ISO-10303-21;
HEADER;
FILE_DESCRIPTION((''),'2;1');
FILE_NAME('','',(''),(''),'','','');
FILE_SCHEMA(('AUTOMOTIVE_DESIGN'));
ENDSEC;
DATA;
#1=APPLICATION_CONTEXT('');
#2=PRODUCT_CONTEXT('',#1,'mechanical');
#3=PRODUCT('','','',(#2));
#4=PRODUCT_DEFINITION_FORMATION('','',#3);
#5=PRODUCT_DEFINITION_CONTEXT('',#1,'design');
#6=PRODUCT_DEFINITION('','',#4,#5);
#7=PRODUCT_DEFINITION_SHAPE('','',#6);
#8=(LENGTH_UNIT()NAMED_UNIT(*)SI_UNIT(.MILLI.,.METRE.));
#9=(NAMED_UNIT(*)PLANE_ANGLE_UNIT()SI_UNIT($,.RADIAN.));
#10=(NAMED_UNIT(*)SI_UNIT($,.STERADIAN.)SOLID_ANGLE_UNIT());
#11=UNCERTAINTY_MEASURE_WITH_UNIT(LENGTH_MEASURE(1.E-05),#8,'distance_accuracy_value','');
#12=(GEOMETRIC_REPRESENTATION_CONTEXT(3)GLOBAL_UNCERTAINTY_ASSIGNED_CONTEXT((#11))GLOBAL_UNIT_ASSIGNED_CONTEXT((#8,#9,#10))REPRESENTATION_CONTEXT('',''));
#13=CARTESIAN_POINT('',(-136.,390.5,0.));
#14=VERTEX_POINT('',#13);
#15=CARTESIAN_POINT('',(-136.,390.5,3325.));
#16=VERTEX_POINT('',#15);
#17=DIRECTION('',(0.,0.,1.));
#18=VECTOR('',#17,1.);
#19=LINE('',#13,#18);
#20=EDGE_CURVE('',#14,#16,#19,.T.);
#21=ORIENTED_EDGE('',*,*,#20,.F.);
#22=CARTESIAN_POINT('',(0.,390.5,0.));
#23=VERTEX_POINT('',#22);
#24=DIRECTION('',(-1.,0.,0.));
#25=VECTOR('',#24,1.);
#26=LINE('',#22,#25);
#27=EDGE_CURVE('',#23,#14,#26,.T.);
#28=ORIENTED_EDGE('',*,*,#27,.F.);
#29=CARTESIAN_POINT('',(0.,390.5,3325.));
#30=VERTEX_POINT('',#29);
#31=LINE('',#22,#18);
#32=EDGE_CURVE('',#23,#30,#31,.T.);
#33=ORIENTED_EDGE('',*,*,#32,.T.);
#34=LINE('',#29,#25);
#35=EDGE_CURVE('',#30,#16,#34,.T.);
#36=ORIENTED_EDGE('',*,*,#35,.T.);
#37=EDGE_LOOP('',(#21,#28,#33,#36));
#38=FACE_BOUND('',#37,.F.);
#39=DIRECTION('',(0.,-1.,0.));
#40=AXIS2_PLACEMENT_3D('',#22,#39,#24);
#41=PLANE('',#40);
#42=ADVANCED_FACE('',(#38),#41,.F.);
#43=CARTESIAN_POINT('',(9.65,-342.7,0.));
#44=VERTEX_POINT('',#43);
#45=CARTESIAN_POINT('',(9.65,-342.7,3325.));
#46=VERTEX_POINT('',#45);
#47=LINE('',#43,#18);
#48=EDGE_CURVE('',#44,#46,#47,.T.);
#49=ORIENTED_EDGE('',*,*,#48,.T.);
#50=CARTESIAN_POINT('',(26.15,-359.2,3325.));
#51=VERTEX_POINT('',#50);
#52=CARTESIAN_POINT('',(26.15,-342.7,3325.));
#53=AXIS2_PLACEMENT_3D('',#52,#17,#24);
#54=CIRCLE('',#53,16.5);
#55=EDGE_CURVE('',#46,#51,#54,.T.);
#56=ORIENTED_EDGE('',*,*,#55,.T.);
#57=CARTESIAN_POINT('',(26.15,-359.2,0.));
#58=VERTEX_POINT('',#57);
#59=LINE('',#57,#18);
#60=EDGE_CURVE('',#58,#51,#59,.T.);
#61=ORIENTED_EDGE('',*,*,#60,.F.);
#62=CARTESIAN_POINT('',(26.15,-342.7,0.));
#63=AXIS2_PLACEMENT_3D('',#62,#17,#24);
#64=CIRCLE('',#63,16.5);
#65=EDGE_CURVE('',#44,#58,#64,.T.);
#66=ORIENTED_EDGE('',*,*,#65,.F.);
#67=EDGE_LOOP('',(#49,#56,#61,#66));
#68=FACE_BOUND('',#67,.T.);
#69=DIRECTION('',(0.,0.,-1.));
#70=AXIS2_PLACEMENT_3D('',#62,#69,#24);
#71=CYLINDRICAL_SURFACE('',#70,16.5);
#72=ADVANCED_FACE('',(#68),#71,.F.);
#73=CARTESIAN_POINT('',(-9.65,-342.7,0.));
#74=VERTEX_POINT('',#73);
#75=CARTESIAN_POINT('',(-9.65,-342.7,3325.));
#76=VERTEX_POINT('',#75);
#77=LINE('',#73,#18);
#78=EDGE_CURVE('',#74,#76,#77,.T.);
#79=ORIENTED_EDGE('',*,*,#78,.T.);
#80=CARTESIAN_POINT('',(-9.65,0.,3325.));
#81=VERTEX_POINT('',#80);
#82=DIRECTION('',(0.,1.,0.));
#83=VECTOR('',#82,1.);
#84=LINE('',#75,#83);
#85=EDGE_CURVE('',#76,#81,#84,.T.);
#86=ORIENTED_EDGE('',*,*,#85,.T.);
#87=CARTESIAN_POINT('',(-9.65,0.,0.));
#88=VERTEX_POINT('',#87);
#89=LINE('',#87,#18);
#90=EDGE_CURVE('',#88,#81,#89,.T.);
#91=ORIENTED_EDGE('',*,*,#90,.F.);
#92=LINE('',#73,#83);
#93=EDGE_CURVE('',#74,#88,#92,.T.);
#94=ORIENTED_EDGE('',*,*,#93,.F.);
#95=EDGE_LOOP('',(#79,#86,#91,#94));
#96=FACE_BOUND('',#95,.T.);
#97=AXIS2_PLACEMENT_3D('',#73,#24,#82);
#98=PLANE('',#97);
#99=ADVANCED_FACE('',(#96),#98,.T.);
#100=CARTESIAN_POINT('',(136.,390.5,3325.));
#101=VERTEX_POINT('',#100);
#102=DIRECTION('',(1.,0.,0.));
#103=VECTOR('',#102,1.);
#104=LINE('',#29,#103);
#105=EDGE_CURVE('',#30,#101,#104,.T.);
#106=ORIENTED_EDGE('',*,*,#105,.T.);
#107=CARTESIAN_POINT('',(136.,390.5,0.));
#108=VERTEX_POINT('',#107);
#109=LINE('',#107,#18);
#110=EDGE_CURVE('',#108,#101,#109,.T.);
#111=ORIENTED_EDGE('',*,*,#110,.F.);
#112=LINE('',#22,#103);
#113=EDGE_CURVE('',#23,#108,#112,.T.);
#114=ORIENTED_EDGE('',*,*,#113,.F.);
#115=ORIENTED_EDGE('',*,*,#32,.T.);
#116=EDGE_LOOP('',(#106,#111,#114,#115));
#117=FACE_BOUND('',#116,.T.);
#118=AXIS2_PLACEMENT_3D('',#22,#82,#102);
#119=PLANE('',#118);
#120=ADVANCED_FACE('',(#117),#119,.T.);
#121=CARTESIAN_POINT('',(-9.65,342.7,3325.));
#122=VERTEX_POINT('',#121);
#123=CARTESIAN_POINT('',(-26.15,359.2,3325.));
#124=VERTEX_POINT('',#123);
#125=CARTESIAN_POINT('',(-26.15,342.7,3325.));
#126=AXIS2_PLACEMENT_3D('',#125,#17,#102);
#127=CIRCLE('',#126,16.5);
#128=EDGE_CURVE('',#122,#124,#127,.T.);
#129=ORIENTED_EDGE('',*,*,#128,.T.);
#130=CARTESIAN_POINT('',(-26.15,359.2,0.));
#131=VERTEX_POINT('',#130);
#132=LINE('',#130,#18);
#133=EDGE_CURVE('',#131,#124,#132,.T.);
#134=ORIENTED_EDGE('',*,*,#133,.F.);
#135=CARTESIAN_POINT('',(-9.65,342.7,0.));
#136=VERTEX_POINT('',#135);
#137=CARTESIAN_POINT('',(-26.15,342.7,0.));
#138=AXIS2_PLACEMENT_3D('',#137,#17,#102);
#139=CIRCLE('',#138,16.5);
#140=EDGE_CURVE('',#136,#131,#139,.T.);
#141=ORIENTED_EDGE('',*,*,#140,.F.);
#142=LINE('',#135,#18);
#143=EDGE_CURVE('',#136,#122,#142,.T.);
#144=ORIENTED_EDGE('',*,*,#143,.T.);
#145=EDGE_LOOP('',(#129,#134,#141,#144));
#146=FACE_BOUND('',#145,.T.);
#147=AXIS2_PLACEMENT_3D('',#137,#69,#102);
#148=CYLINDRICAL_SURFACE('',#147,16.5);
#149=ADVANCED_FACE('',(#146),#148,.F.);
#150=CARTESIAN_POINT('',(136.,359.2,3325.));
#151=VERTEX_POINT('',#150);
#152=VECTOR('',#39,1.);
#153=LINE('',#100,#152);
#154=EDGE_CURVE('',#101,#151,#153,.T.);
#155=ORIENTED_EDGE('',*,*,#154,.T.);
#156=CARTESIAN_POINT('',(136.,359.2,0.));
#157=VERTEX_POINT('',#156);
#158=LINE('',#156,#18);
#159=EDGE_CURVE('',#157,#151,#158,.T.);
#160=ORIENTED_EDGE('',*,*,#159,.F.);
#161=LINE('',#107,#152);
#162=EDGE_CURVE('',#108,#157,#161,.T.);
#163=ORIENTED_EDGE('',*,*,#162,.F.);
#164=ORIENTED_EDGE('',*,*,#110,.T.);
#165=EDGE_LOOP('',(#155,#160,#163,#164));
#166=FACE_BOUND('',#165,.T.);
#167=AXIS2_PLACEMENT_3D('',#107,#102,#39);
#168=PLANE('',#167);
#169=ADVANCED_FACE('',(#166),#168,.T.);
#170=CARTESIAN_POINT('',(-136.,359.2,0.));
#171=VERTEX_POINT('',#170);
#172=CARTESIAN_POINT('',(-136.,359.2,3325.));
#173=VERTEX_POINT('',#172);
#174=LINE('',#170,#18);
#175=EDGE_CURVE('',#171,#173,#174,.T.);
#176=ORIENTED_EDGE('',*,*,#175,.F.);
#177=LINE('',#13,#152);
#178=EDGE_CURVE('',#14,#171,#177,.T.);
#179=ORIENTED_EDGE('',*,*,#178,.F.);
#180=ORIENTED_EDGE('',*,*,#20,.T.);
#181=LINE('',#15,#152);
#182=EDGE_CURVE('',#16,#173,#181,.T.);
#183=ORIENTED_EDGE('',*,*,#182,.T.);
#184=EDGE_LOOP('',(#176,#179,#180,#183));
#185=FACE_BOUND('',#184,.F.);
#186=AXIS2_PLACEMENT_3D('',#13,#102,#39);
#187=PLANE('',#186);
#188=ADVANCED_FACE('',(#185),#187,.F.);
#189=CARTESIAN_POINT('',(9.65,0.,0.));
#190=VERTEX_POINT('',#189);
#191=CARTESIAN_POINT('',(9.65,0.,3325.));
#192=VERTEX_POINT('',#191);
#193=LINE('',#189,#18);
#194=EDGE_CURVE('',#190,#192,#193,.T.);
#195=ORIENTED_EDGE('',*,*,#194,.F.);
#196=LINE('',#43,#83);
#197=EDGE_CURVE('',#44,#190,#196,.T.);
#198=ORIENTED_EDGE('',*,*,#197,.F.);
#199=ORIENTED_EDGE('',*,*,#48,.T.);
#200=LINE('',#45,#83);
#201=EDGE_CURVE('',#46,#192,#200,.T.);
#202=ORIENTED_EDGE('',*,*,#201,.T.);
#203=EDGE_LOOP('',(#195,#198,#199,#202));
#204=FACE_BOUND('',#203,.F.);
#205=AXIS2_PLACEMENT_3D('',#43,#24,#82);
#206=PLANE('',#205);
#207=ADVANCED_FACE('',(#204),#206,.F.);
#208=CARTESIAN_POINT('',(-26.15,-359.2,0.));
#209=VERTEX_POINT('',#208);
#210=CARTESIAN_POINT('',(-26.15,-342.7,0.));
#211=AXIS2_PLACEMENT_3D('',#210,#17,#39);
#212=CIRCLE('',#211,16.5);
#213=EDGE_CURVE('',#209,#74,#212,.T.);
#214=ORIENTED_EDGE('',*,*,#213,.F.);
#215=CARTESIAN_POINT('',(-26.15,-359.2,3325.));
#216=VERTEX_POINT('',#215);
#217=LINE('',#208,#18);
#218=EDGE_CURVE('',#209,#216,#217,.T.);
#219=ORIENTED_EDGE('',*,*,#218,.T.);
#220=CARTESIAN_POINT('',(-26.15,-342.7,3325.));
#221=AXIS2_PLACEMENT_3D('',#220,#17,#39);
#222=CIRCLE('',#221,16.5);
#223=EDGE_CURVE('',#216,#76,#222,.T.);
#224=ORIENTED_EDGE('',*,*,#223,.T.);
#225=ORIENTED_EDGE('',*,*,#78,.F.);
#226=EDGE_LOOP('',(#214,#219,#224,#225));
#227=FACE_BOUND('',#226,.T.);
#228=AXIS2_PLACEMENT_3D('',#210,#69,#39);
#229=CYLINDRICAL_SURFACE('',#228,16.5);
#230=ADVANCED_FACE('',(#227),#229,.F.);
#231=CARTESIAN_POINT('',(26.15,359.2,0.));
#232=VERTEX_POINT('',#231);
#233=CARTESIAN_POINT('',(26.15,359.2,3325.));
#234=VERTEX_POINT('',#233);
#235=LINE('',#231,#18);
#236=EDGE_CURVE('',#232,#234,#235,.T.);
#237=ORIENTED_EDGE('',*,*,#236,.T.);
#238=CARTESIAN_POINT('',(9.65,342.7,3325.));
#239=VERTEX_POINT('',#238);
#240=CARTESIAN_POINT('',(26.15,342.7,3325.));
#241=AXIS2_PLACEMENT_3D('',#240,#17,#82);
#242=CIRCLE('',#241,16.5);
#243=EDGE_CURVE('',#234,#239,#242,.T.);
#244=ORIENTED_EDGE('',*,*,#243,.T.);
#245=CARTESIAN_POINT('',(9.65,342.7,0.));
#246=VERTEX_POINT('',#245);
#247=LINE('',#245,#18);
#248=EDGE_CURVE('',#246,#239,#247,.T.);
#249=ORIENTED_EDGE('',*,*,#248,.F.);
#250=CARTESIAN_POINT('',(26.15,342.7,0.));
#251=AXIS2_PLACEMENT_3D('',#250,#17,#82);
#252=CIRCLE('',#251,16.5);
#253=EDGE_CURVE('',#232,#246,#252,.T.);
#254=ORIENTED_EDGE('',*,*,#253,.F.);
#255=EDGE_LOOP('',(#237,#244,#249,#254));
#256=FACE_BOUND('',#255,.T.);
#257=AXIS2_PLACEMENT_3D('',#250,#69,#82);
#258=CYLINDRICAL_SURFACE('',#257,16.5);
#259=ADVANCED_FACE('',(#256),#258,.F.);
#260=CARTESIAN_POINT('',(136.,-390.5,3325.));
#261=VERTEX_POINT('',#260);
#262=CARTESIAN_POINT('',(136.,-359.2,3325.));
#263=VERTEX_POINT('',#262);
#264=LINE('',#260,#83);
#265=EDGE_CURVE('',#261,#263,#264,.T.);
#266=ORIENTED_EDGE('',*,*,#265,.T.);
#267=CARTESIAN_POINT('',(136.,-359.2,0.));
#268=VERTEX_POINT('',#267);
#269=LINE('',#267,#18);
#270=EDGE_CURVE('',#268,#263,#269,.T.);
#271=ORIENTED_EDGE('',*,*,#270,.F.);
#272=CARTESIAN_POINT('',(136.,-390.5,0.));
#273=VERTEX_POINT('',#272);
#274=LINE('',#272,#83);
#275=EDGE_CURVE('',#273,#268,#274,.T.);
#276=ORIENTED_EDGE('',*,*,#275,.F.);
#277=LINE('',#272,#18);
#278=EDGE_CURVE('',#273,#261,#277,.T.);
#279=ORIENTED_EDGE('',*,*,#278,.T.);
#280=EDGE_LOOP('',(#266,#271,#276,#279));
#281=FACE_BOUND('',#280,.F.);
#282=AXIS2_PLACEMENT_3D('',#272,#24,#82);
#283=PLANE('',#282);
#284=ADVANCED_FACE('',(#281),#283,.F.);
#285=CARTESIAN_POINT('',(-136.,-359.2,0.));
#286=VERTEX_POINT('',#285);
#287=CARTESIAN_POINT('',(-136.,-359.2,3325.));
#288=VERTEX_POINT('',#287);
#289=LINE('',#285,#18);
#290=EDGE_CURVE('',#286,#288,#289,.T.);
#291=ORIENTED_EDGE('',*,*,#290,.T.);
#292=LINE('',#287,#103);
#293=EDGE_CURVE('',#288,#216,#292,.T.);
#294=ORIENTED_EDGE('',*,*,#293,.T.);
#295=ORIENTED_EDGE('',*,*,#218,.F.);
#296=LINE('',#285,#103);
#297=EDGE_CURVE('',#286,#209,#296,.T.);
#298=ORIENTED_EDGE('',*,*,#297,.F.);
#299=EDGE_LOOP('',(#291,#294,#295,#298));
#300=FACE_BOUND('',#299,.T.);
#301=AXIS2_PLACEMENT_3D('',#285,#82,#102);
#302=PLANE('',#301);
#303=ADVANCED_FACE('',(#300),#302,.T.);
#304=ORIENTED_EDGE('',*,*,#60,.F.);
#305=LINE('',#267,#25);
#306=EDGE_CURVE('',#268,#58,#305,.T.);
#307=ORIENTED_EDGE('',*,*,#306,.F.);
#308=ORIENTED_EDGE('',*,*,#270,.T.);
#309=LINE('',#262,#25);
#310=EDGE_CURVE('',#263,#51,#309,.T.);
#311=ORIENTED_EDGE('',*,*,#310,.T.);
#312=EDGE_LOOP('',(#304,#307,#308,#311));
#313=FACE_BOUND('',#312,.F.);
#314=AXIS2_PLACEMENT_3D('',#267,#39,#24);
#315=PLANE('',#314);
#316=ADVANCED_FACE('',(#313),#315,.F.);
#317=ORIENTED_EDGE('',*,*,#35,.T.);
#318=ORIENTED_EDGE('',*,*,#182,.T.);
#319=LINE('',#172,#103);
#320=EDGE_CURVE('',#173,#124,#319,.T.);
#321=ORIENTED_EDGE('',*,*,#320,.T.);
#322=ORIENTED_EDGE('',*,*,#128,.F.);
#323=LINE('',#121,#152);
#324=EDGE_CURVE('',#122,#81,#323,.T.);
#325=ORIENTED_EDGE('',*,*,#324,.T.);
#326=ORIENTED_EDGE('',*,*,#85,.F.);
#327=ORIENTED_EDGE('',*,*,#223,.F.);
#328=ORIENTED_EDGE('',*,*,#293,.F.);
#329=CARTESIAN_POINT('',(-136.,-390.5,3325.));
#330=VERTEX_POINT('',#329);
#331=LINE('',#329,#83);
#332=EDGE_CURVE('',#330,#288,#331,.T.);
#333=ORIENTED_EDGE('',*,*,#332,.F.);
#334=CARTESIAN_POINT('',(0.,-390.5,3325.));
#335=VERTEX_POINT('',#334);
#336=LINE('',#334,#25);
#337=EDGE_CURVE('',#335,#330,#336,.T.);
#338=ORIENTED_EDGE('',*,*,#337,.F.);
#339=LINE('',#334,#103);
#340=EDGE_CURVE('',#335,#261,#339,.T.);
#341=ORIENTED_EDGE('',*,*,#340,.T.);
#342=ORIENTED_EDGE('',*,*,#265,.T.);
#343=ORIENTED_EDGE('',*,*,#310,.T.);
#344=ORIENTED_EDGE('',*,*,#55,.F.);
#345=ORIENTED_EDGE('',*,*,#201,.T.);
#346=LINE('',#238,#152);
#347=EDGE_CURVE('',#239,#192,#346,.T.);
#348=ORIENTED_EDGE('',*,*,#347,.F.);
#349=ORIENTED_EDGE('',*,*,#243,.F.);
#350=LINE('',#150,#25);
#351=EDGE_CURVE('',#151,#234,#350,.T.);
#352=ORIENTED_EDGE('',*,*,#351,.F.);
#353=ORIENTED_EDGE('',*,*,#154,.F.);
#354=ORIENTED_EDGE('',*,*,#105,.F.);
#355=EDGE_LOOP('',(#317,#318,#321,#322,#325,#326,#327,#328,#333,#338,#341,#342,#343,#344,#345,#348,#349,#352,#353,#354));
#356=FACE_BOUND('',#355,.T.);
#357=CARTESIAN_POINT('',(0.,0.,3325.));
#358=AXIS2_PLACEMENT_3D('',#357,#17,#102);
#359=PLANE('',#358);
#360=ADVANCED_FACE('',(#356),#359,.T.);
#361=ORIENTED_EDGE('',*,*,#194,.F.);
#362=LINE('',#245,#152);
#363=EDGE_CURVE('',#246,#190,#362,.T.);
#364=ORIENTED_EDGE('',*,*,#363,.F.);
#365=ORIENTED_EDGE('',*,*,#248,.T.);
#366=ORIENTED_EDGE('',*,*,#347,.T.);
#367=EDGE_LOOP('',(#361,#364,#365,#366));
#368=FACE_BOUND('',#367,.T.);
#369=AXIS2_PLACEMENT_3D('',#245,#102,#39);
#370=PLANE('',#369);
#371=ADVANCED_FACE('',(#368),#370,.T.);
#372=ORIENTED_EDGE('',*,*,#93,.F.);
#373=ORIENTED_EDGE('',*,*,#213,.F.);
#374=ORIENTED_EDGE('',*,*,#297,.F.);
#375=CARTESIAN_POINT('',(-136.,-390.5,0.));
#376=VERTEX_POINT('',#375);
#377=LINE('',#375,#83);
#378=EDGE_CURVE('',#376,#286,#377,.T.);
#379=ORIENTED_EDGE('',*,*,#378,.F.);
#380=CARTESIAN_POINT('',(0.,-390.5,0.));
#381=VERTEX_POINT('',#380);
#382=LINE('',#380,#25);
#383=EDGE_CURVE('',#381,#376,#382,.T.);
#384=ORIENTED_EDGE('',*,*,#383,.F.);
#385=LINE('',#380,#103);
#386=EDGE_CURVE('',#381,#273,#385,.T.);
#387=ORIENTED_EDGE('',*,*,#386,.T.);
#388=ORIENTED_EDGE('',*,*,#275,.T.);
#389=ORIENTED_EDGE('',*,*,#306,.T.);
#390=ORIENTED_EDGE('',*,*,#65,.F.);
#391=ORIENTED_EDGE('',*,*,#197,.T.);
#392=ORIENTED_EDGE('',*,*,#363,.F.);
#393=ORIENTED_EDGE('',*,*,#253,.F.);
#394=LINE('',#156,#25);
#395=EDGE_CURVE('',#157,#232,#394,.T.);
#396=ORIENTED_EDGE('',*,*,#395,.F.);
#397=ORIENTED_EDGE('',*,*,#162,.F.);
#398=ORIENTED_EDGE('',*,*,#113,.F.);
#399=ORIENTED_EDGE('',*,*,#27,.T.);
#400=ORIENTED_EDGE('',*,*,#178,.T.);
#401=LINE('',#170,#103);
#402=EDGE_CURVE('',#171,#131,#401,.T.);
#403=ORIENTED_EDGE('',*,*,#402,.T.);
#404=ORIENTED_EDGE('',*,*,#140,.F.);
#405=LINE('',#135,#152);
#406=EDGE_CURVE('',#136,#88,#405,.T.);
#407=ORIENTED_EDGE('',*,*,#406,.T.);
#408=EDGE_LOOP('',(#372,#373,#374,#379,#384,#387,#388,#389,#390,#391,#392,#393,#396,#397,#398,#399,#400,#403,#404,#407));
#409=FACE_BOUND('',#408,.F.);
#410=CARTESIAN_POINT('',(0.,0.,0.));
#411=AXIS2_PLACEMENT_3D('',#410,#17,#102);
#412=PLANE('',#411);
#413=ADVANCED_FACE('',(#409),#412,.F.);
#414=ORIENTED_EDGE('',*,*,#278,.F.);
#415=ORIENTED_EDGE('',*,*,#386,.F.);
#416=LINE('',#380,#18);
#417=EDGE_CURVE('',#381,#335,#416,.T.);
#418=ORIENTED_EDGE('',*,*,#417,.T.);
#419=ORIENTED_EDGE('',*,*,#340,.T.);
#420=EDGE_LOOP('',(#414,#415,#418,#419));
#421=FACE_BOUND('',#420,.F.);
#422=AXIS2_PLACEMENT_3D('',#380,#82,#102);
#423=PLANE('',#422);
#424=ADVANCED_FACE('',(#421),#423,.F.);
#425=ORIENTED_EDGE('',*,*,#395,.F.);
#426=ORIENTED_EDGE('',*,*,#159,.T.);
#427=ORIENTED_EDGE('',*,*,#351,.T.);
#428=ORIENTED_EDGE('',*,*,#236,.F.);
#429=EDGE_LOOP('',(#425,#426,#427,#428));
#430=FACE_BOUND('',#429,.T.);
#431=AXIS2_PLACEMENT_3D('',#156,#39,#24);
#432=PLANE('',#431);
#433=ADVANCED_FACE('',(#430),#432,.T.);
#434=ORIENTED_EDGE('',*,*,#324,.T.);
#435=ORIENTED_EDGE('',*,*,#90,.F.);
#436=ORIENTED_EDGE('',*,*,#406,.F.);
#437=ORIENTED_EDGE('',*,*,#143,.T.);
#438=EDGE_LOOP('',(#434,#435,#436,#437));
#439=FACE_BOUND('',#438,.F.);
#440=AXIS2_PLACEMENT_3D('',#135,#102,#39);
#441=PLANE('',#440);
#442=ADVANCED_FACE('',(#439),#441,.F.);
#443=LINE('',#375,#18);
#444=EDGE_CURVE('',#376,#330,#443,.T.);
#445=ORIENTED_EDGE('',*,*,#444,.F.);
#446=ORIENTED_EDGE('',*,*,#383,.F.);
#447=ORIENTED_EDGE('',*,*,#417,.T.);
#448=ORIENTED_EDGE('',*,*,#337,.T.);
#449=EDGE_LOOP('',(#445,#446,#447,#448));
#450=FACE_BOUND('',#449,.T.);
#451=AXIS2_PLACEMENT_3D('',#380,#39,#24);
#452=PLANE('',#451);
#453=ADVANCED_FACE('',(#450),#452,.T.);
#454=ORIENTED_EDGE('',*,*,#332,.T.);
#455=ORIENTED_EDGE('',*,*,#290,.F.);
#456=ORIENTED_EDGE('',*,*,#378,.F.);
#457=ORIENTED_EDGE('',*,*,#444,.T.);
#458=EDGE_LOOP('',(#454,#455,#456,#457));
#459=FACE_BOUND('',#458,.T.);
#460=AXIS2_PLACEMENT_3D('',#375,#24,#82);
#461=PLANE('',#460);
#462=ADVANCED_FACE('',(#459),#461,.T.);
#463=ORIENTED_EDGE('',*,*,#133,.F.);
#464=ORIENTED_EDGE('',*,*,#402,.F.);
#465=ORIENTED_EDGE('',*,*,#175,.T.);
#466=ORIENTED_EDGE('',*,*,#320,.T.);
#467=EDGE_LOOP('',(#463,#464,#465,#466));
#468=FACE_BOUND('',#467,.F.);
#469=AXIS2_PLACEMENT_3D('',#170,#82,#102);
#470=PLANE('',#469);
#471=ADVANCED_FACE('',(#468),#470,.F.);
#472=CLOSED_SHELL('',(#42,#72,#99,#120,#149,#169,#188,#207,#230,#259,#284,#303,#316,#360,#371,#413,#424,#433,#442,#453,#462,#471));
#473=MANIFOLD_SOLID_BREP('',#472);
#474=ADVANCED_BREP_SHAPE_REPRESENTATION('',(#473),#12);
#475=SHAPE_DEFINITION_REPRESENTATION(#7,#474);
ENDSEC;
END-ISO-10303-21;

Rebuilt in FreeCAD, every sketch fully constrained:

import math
import FreeCAD as App
import Part
import Sketcher
from FreeCAD import Vector
Q = App.Units.Quantity

doc = App.newDocument("Part")
body = doc.addObject("PartDesign::Body", "Body")

# Sketch on XY plane
sketch1 = doc.addObject("Sketcher::SketchObject", "Sketch")
body.addObject(sketch1)
sketch1.AttachmentSupport = (doc.XY_Plane, [""])
sketch1.MapMode = "FlatFace"
sketch1.addGeometry([
    Part.LineSegment(Vector(-136, -359, 0), Vector(-136, -390, 0)),  # 0
    Part.LineSegment(Vector(-136, -390, 0), Vector(136, -390, 0)),  # 1
    Part.LineSegment(Vector(136, -390, 0), Vector(136, -359, 0)),  # 2
    Part.LineSegment(Vector(136, -359, 0), Vector(26, -359, 0)),  # 3
    Part.ArcOfCircle(Part.Circle(Vector(26, -343, 0), Vector(0, 0, 1), 16), math.radians(180), math.radians(270)),  # 4
    Part.LineSegment(Vector(10, -343, 0), Vector(10, 343, 0)),  # 5
    Part.ArcOfCircle(Part.Circle(Vector(26, 343, 0), Vector(0, 0, 1), 16), math.radians(90), math.radians(180)),  # 6
    Part.LineSegment(Vector(26, 359, 0), Vector(136, 359, 0)),  # 7
    Part.LineSegment(Vector(136, 359, 0), Vector(136, 390, 0)),  # 8
    Part.LineSegment(Vector(136, 390, 0), Vector(-136, 390, 0)),  # 9
    Part.LineSegment(Vector(-136, 390, 0), Vector(-136, 359, 0)),  # 10
    Part.LineSegment(Vector(-136, 359, 0), Vector(-26, 359, 0)),  # 11
    Part.ArcOfCircle(Part.Circle(Vector(-26, 343, 0), Vector(0, 0, 1), 16), math.radians(0), math.radians(90)),  # 12
    Part.LineSegment(Vector(-10, 343, 0), Vector(-10, -343, 0)),  # 13
    Part.ArcOfCircle(Part.Circle(Vector(-26, -343, 0), Vector(0, 0, 1), 16), math.radians(-90), math.radians(0)),  # 14
    Part.LineSegment(Vector(-26, -359, 0), Vector(-136, -359, 0)),  # 15
], False)
sketch1.addConstraint([
    Sketcher.Constraint("Coincident", 0, 2, 1, 1),
    Sketcher.Constraint("Coincident", 1, 2, 2, 1),
    Sketcher.Constraint("Coincident", 2, 2, 3, 1),
    Sketcher.Constraint("Tangent", 3, 2, 4, 2),
    Sketcher.Constraint("Tangent", 4, 1, 5, 1),
    Sketcher.Constraint("Tangent", 5, 2, 6, 2),
    Sketcher.Constraint("Tangent", 6, 1, 7, 1),
    Sketcher.Constraint("Coincident", 7, 2, 8, 1),
    Sketcher.Constraint("Coincident", 8, 2, 9, 1),
    Sketcher.Constraint("Coincident", 9, 2, 10, 1),
    Sketcher.Constraint("Coincident", 10, 2, 11, 1),
    Sketcher.Constraint("Tangent", 11, 2, 12, 2),
    Sketcher.Constraint("Tangent", 12, 1, 13, 1),
    Sketcher.Constraint("Tangent", 13, 2, 14, 2),
    Sketcher.Constraint("Tangent", 14, 1, 15, 1),
    Sketcher.Constraint("Coincident", 15, 2, 0, 1),
    Sketcher.Constraint("Vertical", 0),
    Sketcher.Constraint("Horizontal", 1),
    Sketcher.Constraint("Vertical", 2),
    Sketcher.Constraint("Horizontal", 3),
    Sketcher.Constraint("Vertical", 5),
    Sketcher.Constraint("Horizontal", 7),
    Sketcher.Constraint("Vertical", 8),
    Sketcher.Constraint("Horizontal", 9),
    Sketcher.Constraint("Vertical", 10),
    Sketcher.Constraint("Horizontal", 11),
    Sketcher.Constraint("Vertical", 13),
    Sketcher.Constraint("Horizontal", 15),
    Sketcher.Constraint("Equal", 4, 6),
    Sketcher.Constraint("Equal", 6, 12),
    Sketcher.Constraint("Equal", 12, 14),
    Sketcher.Constraint("Symmetric", 4, 3, 12, 3, -1, 1),
    Sketcher.Constraint("Symmetric", 0, 2, 8, 2, -1, 1),
    Sketcher.Constraint("Symmetric", 7, 2, 10, 2, -2),
    Sketcher.Constraint("Symmetric", 2, 2, 15, 2, -2),
    Sketcher.Constraint("Radius", 4, Q("16.5 mm")),
    Sketcher.Constraint("DistanceY", 0, 2, 0, 1, Q("31.3 mm")),
    Sketcher.Constraint("DistanceX", 0, 2, -1, 1, Q("136 mm")),
    Sketcher.Constraint("DistanceY", 0, 2, -1, 1, Q("390.5 mm")),
    Sketcher.Constraint("DistanceX", -1, 1, 4, 1, Q("9.65 mm")),
])
pad1 = doc.addObject("PartDesign::Pad", "Pad")
body.addObject(pad1)
pad1.Profile = sketch1
pad1.Length = 3325

doc.recompute()
